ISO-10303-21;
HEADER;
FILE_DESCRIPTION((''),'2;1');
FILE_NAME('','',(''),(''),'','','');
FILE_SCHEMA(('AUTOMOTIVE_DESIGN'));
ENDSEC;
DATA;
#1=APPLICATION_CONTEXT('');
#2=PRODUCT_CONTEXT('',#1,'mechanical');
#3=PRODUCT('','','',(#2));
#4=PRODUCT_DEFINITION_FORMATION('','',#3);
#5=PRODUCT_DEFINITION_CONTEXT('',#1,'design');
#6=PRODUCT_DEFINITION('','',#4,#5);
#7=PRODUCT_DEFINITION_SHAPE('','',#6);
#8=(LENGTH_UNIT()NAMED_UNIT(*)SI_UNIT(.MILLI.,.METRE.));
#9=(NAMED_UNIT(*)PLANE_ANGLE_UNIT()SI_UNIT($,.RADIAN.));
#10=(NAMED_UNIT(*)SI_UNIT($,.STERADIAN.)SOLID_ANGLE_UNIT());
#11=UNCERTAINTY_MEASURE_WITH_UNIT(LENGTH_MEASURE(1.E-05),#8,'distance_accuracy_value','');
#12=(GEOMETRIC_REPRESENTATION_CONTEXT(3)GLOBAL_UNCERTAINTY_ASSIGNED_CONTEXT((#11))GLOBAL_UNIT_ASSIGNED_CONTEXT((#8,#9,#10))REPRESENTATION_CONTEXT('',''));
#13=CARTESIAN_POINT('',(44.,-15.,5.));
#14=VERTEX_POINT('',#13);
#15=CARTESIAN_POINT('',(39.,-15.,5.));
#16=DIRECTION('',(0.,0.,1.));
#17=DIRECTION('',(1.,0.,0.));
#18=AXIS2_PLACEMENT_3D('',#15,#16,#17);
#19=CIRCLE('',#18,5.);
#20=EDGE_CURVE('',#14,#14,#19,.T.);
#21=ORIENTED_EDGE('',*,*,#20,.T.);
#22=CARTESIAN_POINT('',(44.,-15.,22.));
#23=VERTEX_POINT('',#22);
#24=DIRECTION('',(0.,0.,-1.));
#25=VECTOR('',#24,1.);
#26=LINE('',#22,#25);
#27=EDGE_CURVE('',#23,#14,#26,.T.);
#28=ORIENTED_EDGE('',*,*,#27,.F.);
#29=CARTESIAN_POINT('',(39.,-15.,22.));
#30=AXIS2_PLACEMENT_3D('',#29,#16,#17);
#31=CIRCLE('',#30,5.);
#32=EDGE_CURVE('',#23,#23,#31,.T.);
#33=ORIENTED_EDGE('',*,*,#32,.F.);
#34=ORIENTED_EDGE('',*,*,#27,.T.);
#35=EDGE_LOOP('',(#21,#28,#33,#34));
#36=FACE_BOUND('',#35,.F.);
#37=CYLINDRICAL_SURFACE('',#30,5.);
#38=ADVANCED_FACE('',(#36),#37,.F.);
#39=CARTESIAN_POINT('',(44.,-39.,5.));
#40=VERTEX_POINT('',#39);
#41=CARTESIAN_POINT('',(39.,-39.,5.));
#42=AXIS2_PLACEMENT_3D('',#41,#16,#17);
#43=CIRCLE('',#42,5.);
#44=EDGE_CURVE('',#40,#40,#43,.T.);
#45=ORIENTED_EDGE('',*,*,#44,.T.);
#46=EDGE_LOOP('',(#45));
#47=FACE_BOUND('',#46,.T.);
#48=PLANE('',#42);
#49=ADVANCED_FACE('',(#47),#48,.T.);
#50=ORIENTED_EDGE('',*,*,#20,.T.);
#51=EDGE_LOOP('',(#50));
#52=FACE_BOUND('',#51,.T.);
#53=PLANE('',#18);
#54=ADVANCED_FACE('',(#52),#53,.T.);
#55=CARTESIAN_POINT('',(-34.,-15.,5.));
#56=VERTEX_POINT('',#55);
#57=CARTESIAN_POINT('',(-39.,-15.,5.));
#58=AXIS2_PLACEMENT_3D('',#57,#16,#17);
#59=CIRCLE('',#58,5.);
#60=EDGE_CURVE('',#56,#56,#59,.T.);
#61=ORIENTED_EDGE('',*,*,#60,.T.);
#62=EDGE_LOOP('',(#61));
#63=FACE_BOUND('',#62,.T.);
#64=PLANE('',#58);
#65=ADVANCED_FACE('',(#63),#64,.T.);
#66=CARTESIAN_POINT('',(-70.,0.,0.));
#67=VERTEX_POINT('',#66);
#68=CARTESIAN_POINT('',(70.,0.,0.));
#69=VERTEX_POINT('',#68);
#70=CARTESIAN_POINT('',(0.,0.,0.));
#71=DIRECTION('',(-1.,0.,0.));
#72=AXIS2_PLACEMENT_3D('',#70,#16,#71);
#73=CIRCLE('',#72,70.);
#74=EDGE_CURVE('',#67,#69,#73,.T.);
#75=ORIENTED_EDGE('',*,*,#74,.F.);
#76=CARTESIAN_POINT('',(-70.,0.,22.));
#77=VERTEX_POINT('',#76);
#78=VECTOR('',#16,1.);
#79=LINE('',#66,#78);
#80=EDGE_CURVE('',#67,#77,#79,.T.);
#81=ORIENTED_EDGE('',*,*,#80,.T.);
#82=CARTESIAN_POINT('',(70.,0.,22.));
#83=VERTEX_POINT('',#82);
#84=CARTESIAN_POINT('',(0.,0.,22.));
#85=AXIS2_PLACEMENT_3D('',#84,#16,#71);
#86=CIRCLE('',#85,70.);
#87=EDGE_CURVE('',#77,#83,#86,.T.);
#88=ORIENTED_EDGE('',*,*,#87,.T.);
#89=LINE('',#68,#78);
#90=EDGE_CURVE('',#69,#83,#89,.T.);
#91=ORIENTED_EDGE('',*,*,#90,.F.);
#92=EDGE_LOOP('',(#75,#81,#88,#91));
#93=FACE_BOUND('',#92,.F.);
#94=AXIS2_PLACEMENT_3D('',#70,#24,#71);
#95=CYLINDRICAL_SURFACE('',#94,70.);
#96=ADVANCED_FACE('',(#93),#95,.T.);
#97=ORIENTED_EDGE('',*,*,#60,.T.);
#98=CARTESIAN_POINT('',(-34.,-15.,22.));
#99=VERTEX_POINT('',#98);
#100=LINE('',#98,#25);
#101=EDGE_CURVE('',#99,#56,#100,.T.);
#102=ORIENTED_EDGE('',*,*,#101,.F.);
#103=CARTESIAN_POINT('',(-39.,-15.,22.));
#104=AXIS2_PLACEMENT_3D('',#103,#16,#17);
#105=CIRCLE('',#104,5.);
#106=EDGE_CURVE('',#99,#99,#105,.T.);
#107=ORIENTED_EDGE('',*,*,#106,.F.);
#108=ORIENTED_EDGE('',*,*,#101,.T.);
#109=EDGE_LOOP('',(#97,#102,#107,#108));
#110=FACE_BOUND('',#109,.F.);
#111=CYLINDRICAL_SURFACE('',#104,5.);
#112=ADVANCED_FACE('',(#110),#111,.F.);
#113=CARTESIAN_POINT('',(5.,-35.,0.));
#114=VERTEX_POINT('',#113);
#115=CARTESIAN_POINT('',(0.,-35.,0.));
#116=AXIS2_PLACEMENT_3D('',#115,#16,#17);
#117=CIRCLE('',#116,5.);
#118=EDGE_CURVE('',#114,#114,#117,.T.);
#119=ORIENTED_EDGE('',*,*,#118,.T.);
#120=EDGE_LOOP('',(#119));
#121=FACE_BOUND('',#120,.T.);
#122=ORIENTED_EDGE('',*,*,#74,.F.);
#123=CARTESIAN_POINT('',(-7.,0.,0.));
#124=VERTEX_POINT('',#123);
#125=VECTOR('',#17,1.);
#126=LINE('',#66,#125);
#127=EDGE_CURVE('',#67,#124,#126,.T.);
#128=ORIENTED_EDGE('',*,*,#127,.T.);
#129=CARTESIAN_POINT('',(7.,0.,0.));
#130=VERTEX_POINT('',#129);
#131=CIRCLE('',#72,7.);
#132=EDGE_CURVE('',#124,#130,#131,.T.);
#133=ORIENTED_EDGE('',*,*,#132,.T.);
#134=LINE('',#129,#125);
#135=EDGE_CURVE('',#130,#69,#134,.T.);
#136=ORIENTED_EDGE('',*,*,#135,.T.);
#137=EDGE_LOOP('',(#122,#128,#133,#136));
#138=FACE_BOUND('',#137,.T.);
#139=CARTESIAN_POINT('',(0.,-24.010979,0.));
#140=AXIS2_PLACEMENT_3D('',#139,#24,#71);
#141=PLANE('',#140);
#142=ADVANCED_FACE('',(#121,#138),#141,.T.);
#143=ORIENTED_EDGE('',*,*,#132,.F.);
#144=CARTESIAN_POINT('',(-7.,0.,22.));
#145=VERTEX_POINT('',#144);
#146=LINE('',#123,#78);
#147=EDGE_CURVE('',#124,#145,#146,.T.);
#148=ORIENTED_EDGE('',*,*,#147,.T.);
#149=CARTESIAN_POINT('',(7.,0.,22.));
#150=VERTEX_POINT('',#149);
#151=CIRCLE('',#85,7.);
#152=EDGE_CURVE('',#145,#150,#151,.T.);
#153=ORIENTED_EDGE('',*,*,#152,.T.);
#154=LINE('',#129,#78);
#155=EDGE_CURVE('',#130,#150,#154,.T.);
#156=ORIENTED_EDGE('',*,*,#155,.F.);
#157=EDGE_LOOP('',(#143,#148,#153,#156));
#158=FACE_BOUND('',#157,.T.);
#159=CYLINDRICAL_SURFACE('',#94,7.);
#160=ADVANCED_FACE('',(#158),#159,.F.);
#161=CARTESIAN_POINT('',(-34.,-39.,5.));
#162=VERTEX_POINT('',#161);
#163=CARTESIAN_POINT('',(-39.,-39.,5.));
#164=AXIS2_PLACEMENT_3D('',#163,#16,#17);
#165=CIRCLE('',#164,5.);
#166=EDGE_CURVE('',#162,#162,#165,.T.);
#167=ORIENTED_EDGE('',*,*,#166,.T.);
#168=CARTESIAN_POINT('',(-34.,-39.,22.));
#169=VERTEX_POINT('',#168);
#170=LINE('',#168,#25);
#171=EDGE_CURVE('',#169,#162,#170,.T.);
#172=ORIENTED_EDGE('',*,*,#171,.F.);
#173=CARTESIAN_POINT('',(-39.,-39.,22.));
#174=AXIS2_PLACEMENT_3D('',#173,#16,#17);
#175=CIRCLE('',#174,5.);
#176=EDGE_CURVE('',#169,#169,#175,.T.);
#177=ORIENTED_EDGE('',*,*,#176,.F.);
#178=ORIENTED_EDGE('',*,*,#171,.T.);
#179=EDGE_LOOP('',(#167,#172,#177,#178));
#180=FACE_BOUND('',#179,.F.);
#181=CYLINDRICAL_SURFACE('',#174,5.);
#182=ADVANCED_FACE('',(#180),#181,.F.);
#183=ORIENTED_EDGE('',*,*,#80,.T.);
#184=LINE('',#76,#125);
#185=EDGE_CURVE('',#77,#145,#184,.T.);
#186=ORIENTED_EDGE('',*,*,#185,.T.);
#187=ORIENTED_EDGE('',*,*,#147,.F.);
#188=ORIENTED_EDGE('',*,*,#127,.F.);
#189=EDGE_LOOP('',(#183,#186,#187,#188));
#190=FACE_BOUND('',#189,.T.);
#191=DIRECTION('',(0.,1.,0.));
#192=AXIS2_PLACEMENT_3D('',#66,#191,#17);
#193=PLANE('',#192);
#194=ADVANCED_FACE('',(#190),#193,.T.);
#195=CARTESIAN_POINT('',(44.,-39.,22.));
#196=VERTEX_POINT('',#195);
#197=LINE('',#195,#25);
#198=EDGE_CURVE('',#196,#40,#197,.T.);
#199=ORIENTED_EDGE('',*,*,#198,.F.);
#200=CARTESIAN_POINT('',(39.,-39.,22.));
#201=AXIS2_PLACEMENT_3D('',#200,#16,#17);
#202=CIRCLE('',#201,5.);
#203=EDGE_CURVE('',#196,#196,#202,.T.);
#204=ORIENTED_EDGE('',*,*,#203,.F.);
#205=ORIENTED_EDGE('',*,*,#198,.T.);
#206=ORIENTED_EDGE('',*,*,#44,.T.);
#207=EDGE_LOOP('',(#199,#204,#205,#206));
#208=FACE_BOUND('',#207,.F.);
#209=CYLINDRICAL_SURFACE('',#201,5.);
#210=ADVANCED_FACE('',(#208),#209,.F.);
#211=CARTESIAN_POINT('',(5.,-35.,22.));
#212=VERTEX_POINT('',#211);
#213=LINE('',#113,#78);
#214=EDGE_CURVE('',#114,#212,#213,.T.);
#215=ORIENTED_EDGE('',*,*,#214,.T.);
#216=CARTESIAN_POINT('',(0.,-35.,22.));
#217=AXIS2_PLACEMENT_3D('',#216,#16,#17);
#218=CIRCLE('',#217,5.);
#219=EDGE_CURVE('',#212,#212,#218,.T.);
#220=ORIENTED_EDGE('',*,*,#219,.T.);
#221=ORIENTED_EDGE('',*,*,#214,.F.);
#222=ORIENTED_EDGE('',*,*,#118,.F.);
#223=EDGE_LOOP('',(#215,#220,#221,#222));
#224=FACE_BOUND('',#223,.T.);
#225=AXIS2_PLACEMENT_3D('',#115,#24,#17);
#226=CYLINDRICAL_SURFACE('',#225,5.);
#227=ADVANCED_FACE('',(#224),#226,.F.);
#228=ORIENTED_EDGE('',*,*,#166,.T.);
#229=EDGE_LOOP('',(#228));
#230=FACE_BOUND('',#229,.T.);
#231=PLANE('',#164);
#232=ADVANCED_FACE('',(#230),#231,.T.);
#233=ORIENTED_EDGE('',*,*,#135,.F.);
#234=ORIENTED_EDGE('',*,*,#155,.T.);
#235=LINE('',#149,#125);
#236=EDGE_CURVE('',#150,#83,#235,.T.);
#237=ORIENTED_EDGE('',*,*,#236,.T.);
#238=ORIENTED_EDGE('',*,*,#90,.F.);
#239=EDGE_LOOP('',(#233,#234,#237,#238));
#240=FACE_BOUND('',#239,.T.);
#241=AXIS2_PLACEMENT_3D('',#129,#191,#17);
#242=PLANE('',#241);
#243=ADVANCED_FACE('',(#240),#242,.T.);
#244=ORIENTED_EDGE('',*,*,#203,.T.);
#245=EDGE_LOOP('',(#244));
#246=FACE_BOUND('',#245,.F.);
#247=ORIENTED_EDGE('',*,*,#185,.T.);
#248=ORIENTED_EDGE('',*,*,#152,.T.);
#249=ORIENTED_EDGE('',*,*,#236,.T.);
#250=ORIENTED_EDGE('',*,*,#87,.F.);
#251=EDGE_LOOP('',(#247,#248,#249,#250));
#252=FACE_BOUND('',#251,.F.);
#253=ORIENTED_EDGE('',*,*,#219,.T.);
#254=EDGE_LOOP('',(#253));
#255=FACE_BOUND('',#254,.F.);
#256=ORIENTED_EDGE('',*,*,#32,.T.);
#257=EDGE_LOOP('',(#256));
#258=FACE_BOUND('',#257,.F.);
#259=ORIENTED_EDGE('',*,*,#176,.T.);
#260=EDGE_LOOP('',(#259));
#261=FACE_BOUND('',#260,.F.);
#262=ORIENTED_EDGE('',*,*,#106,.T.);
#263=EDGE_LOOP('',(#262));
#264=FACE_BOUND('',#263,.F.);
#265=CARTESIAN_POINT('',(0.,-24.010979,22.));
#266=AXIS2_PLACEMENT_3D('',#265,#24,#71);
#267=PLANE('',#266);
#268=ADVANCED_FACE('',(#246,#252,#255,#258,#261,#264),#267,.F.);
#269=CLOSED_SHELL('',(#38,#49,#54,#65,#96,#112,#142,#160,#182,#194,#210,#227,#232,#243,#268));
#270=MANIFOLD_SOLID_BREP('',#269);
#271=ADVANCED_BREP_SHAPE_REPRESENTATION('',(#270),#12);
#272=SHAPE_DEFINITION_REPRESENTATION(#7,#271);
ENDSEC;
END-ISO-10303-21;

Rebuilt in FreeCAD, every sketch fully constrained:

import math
import FreeCAD as App
import Part
import Sketcher
from FreeCAD import Vector

doc = App.newDocument("Part")
body = doc.addObject("PartDesign::Body", "Body")

sketch1 = body.newObject("Sketcher::SketchObject", "Sketch")
sketch1.AttachmentSupport = (doc.getObject("XY_Plane"), [""])
sketch1.MapMode = "FlatFace"
sketch1.addGeometry(Part.ArcOfCircle(Part.Circle(Vector(0, 0, 0), Vector(0, 0, 1), 7), math.radians(180), math.radians(360)), False)
sketch1.addGeometry(Part.LineSegment(Vector(-7, 0, 0), Vector(-70, 0, 0)), False)
sketch1.addGeometry(Part.ArcOfCircle(Part.Circle(Vector(0, 0, 0), Vector(0, 0, 1), 70), math.radians(180), math.radians(360)), False)
sketch1.addGeometry(Part.LineSegment(Vector(70, 0, 0), Vector(7, 0, 0)), False)
sketch1.addConstraint(Sketcher.Constraint("Coincident", 0, 1, 1, 1))
sketch1.addConstraint(Sketcher.Constraint("Coincident", 1, 2, 2, 1))
sketch1.addConstraint(Sketcher.Constraint("Coincident", 2, 2, 3, 1))
sketch1.addConstraint(Sketcher.Constraint("Coincident", 3, 2, 0, 2))
sketch1.addConstraint(Sketcher.Constraint("Horizontal", 1))
sketch1.addConstraint(Sketcher.Constraint("Horizontal", 3))
sketch1.addConstraint(Sketcher.Constraint("Coincident", 0, 3, -1, 1))
sketch1.addConstraint(Sketcher.Constraint("Coincident", 2, 3, -1, 1))
sketch1.addConstraint(Sketcher.Constraint("PointOnObject", 0, 1, -1))
sketch1.addConstraint(Sketcher.Constraint("PointOnObject", 2, 2, -1))
sketch1.addConstraint(Sketcher.Constraint("Radius", 0, 7.0))
sketch1.addConstraint(Sketcher.Constraint("Radius", 2, 70.0))
pad1 = body.newObject("PartDesign::Pad", "Pad")
pad1.Profile = sketch1
pad1.Length = 22

sketch2 = body.newObject("Sketcher::SketchObject", "Sketch001")
sketch2.AttachmentSupport = (doc.getObject("XY_Plane"), [""])
sketch2.MapMode = "FlatFace"
sketch2.AttachmentOffset = App.Placement(Vector(0, 0, 22), App.Rotation())
sketch2.addGeometry(Part.Circle(Vector(-39, -39, 0), Vector(0, 0, 1), 5), False)
sketch2.addGeometry(Part.Circle(Vector(39, -39, 0), Vector(0, 0, 1), 5), False)
sketch2.addGeometry(Part.Circle(Vector(-39, -15, 0), Vector(0, 0, 1), 5), False)
sketch2.addGeometry(Part.Circle(Vector(39, -15, 0), Vector(0, 0, 1), 5), False)
sketch2.addConstraint(Sketcher.Constraint("Equal", 0, 1))
sketch2.addConstraint(Sketcher.Constraint("Equal", 1, 2))
sketch2.addConstraint(Sketcher.Constraint("Equal", 2, 3))
sketch2.addConstraint(Sketcher.Constraint("Symmetric", 0, 3, 1, 3, -2))
sketch2.addConstraint(Sketcher.Constraint("Symmetric", 2, 3, 3, 3, -2))
sketch2.addConstraint(Sketcher.Constraint("Vertical", 0, 3, 2, 3))
sketch2.addConstraint(Sketcher.Constraint("Diameter", 0, 10.0))
sketch2.addConstraint(Sketcher.Constraint("DistanceX", 0, 3, -1, 1, 39.0))
sketch2.addConstraint(Sketcher.Constraint("DistanceY", 0, 3, -1, 1, 39.0))
sketch2.addConstraint(Sketcher.Constraint("DistanceY", 2, 3, -1, 1, 15.0))
pad2 = body.newObject("PartDesign::Pad", "Pad001")
pad2.Profile = sketch2
pad2.Length = 17
pad2.Reversed = True

sketch3 = body.newObject("Sketcher::SketchObject", "Sketch002")
sketch3.AttachmentSupport = (doc.getObject("XY_Plane"), [""])
sketch3.MapMode = "FlatFace"
sketch3.AttachmentOffset = App.Placement(Vector(0, 0, 22), App.Rotation())
sketch3.addGeometry(Part.Circle(Vector(-39, -39, 0), Vector(0, 0, 1), 5), False)
sketch3.addGeometry(Part.Circle(Vector(39, -39, 0), Vector(0, 0, 1), 5), False)
sketch3.addGeometry(Part.Circle(Vector(-39, -15, 0), Vector(0, 0, 1), 5), False)
sketch3.addGeometry(Part.Circle(Vector(39, -15, 0), Vector(0, 0, 1), 5), False)
sketch3.addConstraint(Sketcher.Constraint("Equal", 0, 1))
sketch3.addConstraint(Sketcher.Constraint("Equal", 1, 2))
sketch3.addConstraint(Sketcher.Constraint("Equal", 2, 3))
sketch3.addConstraint(Sketcher.Constraint("Symmetric", 0, 3, 1, 3, -2))
sketch3.addConstraint(Sketcher.Constraint("Symmetric", 2, 3, 3, 3, -2))
sketch3.addConstraint(Sketcher.Constraint("Vertical", 0, 3, 2, 3))
sketch3.addConstraint(Sketcher.Constraint("Diameter", 0, 10.0))
sketch3.addConstraint(Sketcher.Constraint("DistanceX", 0, 3, -1, 1, 39.0))
sketch3.addConstraint(Sketcher.Constraint("DistanceY", 0, 3, -1, 1, 39.0))
sketch3.addConstraint(Sketcher.Constraint("DistanceY", 2, 3, -1, 1, 15.0))
pocket1 = body.newObject("PartDesign::Pocket", "Pocket")
pocket1.Profile = sketch3
pocket1.Length = 17

sketch4 = body.newObject("Sketcher::SketchObject", "Sketch003")
sketch4.AttachmentSupport = (doc.getObject("XY_Plane"), [""])
sketch4.MapMode = "FlatFace"
sketch4.addGeometry(Part.Circle(Vector(0, -35, 0), Vector(0, 0, 1), 5), False)
sketch4.addConstraint(Sketcher.Constraint("PointOnObject", 0, 3, -2))
sketch4.addConstraint(Sketcher.Constraint("Diameter", 0, 10.0))
sketch4.addConstraint(Sketcher.Constraint("DistanceY", 0, 3, -1, 1, 35.0))
pocket2 = body.newObject("PartDesign::Pocket", "Pocket001")
pocket2.Profile = sketch4
pocket2.Length = 22
pocket2.Reversed = True

doc.recompute()
